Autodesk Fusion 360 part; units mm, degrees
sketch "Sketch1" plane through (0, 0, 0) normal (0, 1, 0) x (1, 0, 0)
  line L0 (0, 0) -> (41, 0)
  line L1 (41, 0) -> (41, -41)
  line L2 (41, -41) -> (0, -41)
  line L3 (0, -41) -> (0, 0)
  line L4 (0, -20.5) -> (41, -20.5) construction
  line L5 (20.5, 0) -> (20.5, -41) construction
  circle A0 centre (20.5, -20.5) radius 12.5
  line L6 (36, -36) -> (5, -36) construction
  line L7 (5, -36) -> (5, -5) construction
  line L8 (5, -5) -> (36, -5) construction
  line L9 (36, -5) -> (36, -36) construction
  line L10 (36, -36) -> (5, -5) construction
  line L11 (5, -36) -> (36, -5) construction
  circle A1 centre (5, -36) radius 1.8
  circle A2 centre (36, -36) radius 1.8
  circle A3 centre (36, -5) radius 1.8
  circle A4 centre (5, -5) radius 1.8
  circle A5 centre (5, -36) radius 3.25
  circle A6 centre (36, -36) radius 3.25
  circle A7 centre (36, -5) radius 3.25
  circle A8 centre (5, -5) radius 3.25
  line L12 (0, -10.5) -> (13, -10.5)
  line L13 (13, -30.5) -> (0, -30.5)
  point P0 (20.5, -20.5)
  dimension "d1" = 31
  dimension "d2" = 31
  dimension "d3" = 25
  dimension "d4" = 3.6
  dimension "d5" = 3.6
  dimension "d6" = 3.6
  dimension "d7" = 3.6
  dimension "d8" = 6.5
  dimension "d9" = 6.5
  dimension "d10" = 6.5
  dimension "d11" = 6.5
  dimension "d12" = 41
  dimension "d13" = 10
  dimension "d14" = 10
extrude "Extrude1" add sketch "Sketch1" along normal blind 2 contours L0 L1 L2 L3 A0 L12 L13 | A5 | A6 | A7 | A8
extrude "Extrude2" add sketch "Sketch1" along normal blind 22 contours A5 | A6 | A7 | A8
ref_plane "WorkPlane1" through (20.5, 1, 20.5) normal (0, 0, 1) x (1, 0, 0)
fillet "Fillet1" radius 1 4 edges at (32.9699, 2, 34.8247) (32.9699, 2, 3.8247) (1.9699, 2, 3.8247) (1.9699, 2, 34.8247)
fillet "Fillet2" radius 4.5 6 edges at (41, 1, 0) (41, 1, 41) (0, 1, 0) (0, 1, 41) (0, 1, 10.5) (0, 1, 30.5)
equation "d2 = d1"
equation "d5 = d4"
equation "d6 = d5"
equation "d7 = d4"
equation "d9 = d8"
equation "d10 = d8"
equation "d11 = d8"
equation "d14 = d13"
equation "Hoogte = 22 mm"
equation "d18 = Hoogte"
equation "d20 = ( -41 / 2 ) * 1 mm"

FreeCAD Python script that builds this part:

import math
import FreeCAD as App
import Part
import Sketcher
Q = App.Units.Quantity


def edges_at(feature, points):
    """Names of the edges that pass closest to the given points."""
    edges = feature.Shape.Edges
    near = lambda p: min(range(len(edges)), key=lambda i: edges[i].distToShape(Part.Vertex(*p))[0])
    return sorted({f"Edge{near(p) + 1}" for p in points})

doc = App.newDocument("Part")
body = doc.addObject("PartDesign::Body", "Body")

# Sketch on XZ plane
sketch1 = body.newObject("Sketcher::SketchObject", "Sketch")
sketch1.AttachmentSupport = (doc.getObject("XZ_Plane"), [""])
sketch1.MapMode = "FlatFace"
sketch1.addGeometry([
    Part.LineSegment(App.Vector(41, 0, 0), App.Vector(0, 0, 0)),  # 0
    Part.LineSegment(App.Vector(0, 0, 0), App.Vector(0, 10.5, 0)),  # 1
    Part.LineSegment(App.Vector(0, 10.5, 0), App.Vector(13, 10.5, 0)),  # 2
    Part.ArcOfCircle(Part.Circle(App.Vector(20.5, 20.5, 0), App.Vector(0, 0, 1), 12.5), math.radians(-127), math.radians(127)),  # 3
    Part.LineSegment(App.Vector(13, 30.5, 0), App.Vector(0, 30.5, 0)),  # 4
    Part.LineSegment(App.Vector(0, 30.5, 0), App.Vector(0, 41, 0)),  # 5
    Part.LineSegment(App.Vector(0, 41, 0), App.Vector(41, 41, 0)),  # 6
    Part.LineSegment(App.Vector(41, 41, 0), App.Vector(41, 0, 0)),  # 7
    Part.Circle(App.Vector(5, 36, 0), App.Vector(0, 0, 1), 1.8),  # 8
    Part.Circle(App.Vector(36, 36, 0), App.Vector(0, 0, 1), 1.8),  # 9
    Part.Circle(App.Vector(5, 5, 0), App.Vector(0, 0, 1), 1.8),  # 10
    Part.Circle(App.Vector(36, 5, 0), App.Vector(0, 0, 1), 1.8),  # 11
], False)
sketch1.addConstraint([
    Sketcher.Constraint("Coincident", 0, 2, 1, 1),
    Sketcher.Constraint("Coincident", 1, 2, 2, 1),
    Sketcher.Constraint("Coincident", 2, 2, 3, 1),
    Sketcher.Constraint("Coincident", 3, 2, 4, 1),
    Sketcher.Constraint("Coincident", 4, 2, 5, 1),
    Sketcher.Constraint("Coincident", 5, 2, 6, 1),
    Sketcher.Constraint("Coincident", 6, 2, 7, 1),
    Sketcher.Constraint("Coincident", 7, 2, 0, 1),
    Sketcher.Constraint("Horizontal", 0),
    Sketcher.Constraint("Vertical", 1),
    Sketcher.Constraint("Horizontal", 2),
    Sketcher.Constraint("Horizontal", 4),
    Sketcher.Constraint("Vertical", 5),
    Sketcher.Constraint("Horizontal", 6),
    Sketcher.Constraint("Vertical", 7),
    Sketcher.Constraint("Coincident", 0, 2, -1, 1),
    Sketcher.Constraint("Equal", 8, 9),
    Sketcher.Constraint("Equal", 9, 10),
    Sketcher.Constraint("Equal", 10, 11),
    Sketcher.Constraint("PointOnObject", 4, 2, -2),
    Sketcher.Constraint("Horizontal", 8, 3, 9, 3),
    Sketcher.Constraint("Horizontal", 10, 3, 11, 3),
    Sketcher.Constraint("Vertical", 8, 3, 10, 3),
    Sketcher.Constraint("Vertical", 9, 3, 11, 3),
    Sketcher.Constraint("Vertical", 2, 2, 3, 2),
    Sketcher.Constraint("Equal", 1, 5),
    Sketcher.Constraint("Equal", 6, 7),
    Sketcher.Constraint("Diameter", 8, Q("3.6 mm")),
    Sketcher.Constraint("Radius", 3, Q("12.5 mm")),
    Sketcher.Constraint("DistanceX", 0, 2, 0, 1, Q("41 mm")),
    Sketcher.Constraint("DistanceX", 8, 3, 9, 3, Q("31 mm")),
    Sketcher.Constraint("DistanceY", 10, 3, 8, 3, Q("31 mm")),
    Sketcher.Constraint("DistanceY", 1, 2, 3, 3, Q("10 mm")),
    Sketcher.Constraint("DistanceX", 2, 1, 2, 2, Q("13 mm")),
    Sketcher.Constraint("DistanceX", -1, 1, 8, 3, Q("5 mm")),
    Sketcher.Constraint("DistanceY", -1, 1, 8, 3, Q("36 mm")),
])
pad1 = body.newObject("PartDesign::Pad", "Pad")
pad1.Profile = sketch1
pad1.Length = 2
pad1.Reversed = True

# Sketch on XZ plane
sketch2 = body.newObject("Sketcher::SketchObject", "Sketch001")
sketch2.AttachmentSupport = (doc.getObject("XZ_Plane"), [""])
sketch2.MapMode = "FlatFace"
sketch2.addGeometry([
    Part.Circle(App.Vector(5, 36, 0), App.Vector(0, 0, 1), 3.2),  # 0
    Part.Circle(App.Vector(5, 36, 0), App.Vector(0, 0, 1), 1.8),  # 1
    Part.Circle(App.Vector(36, 36, 0), App.Vector(0, 0, 1), 3.2),  # 2
    Part.Circle(App.Vector(36, 36, 0), App.Vector(0, 0, 1), 1.8),  # 3
    Part.Circle(App.Vector(36, 5, 0), App.Vector(0, 0, 1), 3.2),  # 4
    Part.Circle(App.Vector(36, 5, 0), App.Vector(0, 0, 1), 1.8),  # 5
    Part.Circle(App.Vector(5, 5, 0), App.Vector(0, 0, 1), 3.2),  # 6
    Part.Circle(App.Vector(5, 5, 0), App.Vector(0, 0, 1), 1.8),  # 7
], False)
sketch2.addConstraint([
    Sketcher.Constraint("Coincident", 1, 3, 0, 3),
    Sketcher.Constraint("Coincident", 3, 3, 2, 3),
    Sketcher.Constraint("Coincident", 5, 3, 4, 3),
    Sketcher.Constraint("Coincident", 7, 3, 6, 3),
    Sketcher.Constraint("Equal", 0, 2),
    Sketcher.Constraint("Equal", 1, 3),
    Sketcher.Constraint("Equal", 2, 4),
    Sketcher.Constraint("Equal", 3, 5),
    Sketcher.Constraint("Equal", 4, 6),
    Sketcher.Constraint("Equal", 5, 7),
    Sketcher.Constraint("Horizontal", 1, 3, 2, 3),
    Sketcher.Constraint("Horizontal", 5, 3, 6, 3),
    Sketcher.Constraint("Vertical", 3, 3, 4, 3),
    Sketcher.Constraint("Vertical", 1, 3, 6, 3),
    Sketcher.Constraint("Diameter", 0, Q("6.5 mm")),
    Sketcher.Constraint("Diameter", 1, Q("3.6 mm")),
    Sketcher.Constraint("DistanceX", 0, 3, 2, 3, Q("31 mm")),
    Sketcher.Constraint("DistanceY", 4, 3, 2, 3, Q("31 mm")),
    Sketcher.Constraint("DistanceX", -1, 1, 0, 3, Q("5 mm")),
    Sketcher.Constraint("DistanceY", -1, 1, 0, 3, Q("36 mm")),
])
pad2 = body.newObject("PartDesign::Pad", "Pad001")
pad2.Profile = sketch2
pad2.Length = 22
pad2.Reversed = True
doc.recompute()

fillet = body.newObject("PartDesign::Fillet", "Fillet")
fillet.Base = (pad2, edges_at(pad2, [
    (32.97, 2, 34.825),
    (32.97, 2, 3.825),
    (1.97, 2, 3.825),
    (1.97, 2, 34.825),
]))
fillet.Radius = 1
doc.recompute()

fillet2 = body.newObject("PartDesign::Fillet", "Fillet001")
fillet2.Base = (fillet, edges_at(fillet, [
    (41, 1, 0),
    (41, 1, 41),
    (0, 1, 0),
    (0, 1, 41),
    (0, 1, 10.5),
    (0, 1, 30.5),
]))
fillet2.Radius = 4.5

doc.recompute()
